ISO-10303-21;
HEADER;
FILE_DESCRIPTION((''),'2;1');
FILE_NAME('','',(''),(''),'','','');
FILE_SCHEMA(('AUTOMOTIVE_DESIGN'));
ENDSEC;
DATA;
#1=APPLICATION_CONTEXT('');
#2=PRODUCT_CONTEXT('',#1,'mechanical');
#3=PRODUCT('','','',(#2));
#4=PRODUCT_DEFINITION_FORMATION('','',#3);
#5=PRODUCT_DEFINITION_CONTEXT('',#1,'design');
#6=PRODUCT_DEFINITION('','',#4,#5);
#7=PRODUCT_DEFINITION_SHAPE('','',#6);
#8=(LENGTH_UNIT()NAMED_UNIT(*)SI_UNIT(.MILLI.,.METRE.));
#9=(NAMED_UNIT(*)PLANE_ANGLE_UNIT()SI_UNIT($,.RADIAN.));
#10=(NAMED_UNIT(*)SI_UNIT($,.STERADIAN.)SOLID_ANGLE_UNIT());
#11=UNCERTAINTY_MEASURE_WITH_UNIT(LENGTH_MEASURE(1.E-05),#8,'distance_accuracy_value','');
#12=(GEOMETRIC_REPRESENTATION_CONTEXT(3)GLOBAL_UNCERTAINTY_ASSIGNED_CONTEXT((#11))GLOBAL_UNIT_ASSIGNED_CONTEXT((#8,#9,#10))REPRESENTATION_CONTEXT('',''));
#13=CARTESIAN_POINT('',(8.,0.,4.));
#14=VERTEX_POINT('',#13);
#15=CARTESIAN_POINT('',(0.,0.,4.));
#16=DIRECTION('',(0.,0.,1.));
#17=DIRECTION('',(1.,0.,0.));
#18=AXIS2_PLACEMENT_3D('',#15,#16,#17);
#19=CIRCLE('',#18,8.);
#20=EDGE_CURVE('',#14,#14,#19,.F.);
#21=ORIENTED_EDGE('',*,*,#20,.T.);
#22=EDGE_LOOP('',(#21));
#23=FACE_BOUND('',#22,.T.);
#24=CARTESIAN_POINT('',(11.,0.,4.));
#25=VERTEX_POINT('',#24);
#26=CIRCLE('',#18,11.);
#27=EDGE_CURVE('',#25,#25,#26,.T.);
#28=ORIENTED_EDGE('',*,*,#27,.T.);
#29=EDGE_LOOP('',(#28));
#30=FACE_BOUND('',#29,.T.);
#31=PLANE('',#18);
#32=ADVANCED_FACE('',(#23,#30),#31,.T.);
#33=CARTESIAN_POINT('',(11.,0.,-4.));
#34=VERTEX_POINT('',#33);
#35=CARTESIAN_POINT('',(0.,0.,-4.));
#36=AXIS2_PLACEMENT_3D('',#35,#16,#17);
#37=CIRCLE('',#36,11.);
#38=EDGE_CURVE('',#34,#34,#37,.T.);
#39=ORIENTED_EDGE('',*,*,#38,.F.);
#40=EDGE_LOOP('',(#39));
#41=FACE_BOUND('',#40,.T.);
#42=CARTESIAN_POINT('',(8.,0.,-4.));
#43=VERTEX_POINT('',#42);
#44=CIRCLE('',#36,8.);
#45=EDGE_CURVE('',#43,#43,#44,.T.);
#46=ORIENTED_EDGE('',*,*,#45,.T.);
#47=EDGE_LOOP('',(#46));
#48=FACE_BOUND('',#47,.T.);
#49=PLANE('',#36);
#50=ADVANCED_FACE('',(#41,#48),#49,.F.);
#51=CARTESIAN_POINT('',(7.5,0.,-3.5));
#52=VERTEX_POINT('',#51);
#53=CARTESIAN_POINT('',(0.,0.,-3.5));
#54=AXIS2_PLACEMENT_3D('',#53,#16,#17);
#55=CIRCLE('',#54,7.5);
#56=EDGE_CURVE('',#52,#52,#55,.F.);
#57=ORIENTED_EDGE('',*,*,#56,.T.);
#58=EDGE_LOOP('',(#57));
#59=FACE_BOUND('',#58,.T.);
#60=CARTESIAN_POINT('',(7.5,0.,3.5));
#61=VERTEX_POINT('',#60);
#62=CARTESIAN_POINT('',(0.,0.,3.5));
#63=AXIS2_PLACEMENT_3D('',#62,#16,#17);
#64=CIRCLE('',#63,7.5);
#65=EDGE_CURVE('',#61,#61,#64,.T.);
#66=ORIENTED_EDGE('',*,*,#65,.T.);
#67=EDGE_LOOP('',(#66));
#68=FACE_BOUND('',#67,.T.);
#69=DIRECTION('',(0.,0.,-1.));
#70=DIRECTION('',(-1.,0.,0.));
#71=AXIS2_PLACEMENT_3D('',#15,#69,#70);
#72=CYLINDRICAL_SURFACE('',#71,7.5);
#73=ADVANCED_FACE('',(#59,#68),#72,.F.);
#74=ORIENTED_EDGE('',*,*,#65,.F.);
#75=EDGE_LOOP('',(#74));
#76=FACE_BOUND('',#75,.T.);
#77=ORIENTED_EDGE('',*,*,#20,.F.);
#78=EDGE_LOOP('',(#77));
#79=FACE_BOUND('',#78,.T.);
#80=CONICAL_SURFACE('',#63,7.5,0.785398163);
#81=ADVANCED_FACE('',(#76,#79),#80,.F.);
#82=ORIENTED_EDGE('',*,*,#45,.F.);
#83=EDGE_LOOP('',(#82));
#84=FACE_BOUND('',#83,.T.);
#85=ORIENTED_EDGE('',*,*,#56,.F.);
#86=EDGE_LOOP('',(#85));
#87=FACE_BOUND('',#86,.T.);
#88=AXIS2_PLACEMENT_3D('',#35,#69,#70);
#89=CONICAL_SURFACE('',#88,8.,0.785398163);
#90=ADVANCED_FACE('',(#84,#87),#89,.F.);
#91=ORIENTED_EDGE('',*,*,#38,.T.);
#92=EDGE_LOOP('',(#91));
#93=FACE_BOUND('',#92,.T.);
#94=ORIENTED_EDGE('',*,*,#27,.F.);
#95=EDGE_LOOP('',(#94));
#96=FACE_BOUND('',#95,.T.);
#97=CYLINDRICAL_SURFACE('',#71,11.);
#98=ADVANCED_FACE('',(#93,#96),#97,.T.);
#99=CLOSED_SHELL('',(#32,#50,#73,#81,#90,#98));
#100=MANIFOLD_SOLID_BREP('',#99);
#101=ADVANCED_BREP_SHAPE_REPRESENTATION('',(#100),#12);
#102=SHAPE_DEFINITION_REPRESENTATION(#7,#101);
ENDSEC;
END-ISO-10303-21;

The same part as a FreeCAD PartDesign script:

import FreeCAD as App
import Part
import Sketcher

V = App.Vector
Q = App.Units.Quantity


def edges_at(feature, points):
    """Names of the edges that pass closest to the given points."""
    edges = feature.Shape.Edges
    near = lambda p: min(range(len(edges)), key=lambda i: edges[i].distToShape(Part.Vertex(*p))[0])
    return sorted({f"Edge{near(p) + 1}" for p in points})

doc = App.newDocument("Part")
body = doc.addObject("PartDesign::Body", "Body")

# Sketch on XY plane
sketch1 = doc.addObject("Sketcher::SketchObject", "Sketch")
body.addObject(sketch1)
sketch1.AttachmentSupport = (doc.XY_Plane, [""])
sketch1.MapMode = "FlatFace"
sketch1.addGeometry(Part.Circle(V(0, 0, 0), V(0, 0, 1), 11), False)
sketch1.addGeometry(Part.Circle(V(0, 0, 0), V(0, 0, 1), 8), False)
sketch1.addConstraint(Sketcher.Constraint("Coincident", 0, 3, -1, 1))
sketch1.addConstraint(Sketcher.Constraint("Coincident", 1, 3, -1, 1))
sketch1.addConstraint(Sketcher.Constraint("Diameter", 0, Q("22 mm")))
sketch1.addConstraint(Sketcher.Constraint("Diameter", 1, Q("15 mm")))
pad1 = doc.addObject("PartDesign::Pad", "Pad")
body.addObject(pad1)
pad1.Profile = sketch1
pad1.Length = 8
pad1.Midplane = True
doc.recompute()

chamfer = doc.addObject("PartDesign::Chamfer", "Chamfer")
body.addObject(chamfer)
chamfer.Base = (pad1, edges_at(pad1, [(-7.5, 0, -4), (-7.5, 0, 4)]))
chamfer.Size = 0.5

doc.recompute()
